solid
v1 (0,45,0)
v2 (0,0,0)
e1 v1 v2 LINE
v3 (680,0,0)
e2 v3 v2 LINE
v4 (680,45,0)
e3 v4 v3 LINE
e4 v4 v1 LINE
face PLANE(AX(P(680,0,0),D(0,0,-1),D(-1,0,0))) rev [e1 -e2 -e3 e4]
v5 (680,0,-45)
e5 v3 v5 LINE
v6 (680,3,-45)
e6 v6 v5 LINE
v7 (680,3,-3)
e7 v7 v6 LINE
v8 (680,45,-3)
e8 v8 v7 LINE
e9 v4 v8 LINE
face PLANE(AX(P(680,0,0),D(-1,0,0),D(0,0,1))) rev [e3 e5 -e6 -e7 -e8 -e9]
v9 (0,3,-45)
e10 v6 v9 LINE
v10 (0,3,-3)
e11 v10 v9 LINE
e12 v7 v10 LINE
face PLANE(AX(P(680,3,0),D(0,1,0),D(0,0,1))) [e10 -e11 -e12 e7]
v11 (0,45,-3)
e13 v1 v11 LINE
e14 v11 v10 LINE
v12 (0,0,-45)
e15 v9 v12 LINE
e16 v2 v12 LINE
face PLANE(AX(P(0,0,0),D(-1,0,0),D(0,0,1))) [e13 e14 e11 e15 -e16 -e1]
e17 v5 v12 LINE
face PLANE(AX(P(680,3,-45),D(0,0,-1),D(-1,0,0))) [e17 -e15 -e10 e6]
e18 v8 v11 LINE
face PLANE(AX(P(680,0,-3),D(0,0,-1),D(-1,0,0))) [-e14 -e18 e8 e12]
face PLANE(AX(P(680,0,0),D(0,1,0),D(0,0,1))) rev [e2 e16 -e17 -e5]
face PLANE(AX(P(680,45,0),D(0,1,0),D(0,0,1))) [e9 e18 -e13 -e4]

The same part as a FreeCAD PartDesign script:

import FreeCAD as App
import Part
import Sketcher

V = App.Vector
Q = App.Units.Quantity

doc = App.newDocument("Part")
body = doc.addObject("PartDesign::Body", "Body")

# Sketch on YZ plane
sketch1 = doc.addObject("Sketcher::SketchObject", "Sketch")
body.addObject(sketch1)
sketch1.AttachmentSupport = (doc.YZ_Plane, [""])
sketch1.MapMode = "FlatFace"
sketch1.addGeometry([
    Part.LineSegment(V(0, 0, 0), V(0, -45, 0)),  # 0
    Part.LineSegment(V(0, -45, 0), V(3, -45, 0)),  # 1
    Part.LineSegment(V(3, -45, 0), V(3, -3, 0)),  # 2
    Part.LineSegment(V(3, -3, 0), V(45, -3, 0)),  # 3
    Part.LineSegment(V(45, -3, 0), V(45, 0, 0)),  # 4
    Part.LineSegment(V(45, 0, 0), V(0, 0, 0)),  # 5
], False)
sketch1.addConstraint([
    Sketcher.Constraint("Coincident", 0, 2, 1, 1),
    Sketcher.Constraint("Coincident", 1, 2, 2, 1),
    Sketcher.Constraint("Coincident", 2, 2, 3, 1),
    Sketcher.Constraint("Coincident", 3, 2, 4, 1),
    Sketcher.Constraint("Coincident", 4, 2, 5, 1),
    Sketcher.Constraint("Coincident", 5, 2, 0, 1),
    Sketcher.Constraint("Vertical", 0),
    Sketcher.Constraint("Horizontal", 1),
    Sketcher.Constraint("Vertical", 2),
    Sketcher.Constraint("Horizontal", 3),
    Sketcher.Constraint("Vertical", 4),
    Sketcher.Constraint("Horizontal", 5),
    Sketcher.Constraint("Coincident", 5, 2, -1, 1),
    Sketcher.Constraint("Equal", 5, 0),
    Sketcher.Constraint("Equal", 3, 2),
    Sketcher.Constraint("DistanceX", 1, 1, 1, 2, Q("3 mm")),
    Sketcher.Constraint("DistanceX", 3, 1, 3, 2, Q("42 mm")),
])
pad1 = doc.addObject("PartDesign::Pad", "Pad")
body.addObject(pad1)
pad1.Profile = sketch1
pad1.Length = 680

doc.recompute()
